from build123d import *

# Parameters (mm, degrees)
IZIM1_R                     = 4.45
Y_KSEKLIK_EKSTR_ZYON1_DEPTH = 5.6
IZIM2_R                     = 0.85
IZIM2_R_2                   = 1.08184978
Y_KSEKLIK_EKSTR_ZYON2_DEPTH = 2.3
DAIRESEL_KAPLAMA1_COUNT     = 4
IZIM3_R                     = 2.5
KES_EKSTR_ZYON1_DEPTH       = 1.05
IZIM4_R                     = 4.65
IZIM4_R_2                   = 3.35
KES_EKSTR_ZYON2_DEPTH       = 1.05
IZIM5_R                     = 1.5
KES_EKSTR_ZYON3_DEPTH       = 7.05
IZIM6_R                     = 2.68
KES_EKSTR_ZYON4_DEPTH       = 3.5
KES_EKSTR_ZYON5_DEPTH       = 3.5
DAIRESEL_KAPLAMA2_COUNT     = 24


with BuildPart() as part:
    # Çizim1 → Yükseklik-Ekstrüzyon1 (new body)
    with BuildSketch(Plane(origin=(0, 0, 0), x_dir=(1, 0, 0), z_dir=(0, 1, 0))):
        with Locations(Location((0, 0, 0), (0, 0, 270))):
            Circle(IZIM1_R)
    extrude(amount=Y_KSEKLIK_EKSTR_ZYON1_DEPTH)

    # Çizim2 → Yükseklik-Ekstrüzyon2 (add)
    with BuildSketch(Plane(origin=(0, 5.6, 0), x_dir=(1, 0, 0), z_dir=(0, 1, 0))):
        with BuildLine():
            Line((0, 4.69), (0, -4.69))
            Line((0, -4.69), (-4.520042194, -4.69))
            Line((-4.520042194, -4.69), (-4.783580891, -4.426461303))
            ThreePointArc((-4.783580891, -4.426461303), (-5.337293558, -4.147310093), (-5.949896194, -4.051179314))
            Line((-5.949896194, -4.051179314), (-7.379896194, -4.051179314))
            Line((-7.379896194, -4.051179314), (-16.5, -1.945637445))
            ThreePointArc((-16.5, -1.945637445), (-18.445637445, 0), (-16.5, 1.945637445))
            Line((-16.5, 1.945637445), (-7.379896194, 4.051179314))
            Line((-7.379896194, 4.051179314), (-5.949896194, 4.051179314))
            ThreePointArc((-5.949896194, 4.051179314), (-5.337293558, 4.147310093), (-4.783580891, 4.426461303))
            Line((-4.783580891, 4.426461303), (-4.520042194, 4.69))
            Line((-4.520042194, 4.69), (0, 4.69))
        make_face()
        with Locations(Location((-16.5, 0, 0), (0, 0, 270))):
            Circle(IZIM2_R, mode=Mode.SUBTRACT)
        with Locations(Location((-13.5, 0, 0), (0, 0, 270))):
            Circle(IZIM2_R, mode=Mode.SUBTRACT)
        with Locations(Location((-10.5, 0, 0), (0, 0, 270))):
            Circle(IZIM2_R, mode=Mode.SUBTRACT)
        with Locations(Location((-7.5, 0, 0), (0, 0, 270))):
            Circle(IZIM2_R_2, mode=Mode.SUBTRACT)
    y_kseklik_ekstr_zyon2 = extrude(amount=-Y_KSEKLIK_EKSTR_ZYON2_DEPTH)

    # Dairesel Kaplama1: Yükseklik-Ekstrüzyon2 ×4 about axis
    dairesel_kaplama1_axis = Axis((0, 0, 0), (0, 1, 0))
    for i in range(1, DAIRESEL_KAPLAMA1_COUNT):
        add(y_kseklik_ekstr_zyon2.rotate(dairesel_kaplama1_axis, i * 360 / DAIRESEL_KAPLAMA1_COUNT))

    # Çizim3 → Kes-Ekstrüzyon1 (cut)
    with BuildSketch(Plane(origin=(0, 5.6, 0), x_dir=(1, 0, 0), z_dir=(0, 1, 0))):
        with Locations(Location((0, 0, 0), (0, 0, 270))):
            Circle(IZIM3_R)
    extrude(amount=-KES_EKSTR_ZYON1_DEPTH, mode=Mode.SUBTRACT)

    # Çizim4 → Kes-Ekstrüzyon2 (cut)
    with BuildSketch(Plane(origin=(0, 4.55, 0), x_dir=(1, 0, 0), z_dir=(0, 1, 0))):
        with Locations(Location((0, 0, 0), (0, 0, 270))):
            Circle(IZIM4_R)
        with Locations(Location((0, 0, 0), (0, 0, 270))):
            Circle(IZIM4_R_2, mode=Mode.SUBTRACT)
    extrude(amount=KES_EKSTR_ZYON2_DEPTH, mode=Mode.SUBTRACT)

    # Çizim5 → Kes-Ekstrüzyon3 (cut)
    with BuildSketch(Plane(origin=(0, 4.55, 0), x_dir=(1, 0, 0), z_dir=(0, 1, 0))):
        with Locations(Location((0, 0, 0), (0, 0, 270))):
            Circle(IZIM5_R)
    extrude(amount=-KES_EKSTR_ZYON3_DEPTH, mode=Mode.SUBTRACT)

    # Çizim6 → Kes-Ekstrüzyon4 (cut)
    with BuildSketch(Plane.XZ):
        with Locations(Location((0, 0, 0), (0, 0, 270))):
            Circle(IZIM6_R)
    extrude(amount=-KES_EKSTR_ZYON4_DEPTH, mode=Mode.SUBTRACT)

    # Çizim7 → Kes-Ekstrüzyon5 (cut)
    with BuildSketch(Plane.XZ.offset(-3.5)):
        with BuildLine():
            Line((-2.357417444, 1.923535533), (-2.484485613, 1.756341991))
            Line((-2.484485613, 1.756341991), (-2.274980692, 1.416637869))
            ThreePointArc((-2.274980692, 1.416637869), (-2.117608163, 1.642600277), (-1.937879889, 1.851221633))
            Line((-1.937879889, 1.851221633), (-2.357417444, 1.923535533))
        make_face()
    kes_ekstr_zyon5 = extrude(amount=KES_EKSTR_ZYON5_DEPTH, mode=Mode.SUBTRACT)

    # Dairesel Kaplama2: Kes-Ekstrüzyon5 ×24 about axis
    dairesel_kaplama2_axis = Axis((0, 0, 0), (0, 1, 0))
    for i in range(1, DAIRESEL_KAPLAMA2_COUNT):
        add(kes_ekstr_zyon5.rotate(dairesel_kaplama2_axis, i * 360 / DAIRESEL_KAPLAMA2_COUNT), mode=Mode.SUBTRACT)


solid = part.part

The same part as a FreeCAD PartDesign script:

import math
import FreeCAD as App
import Part
import Sketcher

V = App.Vector
Q = App.Units.Quantity

doc = App.newDocument("Part")
params = doc.addObject("Spreadsheet::Sheet", "Params")
for row, (alias, value) in enumerate([
    ("sketch1_diameter", "8.9 mm"),
    ("pad1_length", "5.6 mm"),
    ("sketch2_radius", "2 mm"),
    ("sketch2_diameter", "1.7 mm"),
    ("sketch2_width", "1.43 mm"),
    ("sketch2_height", "9.38 mm"),
    ("sketch2_length", "9.36 mm"),
    ("pad2_length", "2.3 mm"),
    ("sketch3_diameter", "5 mm"),
    ("pocket1_length", "1.05 mm"),
    ("sketch4_diameter", "9.3 mm"),
    ("sketch4_diameter2", "6.7 mm"),
    ("pocket2_length", "1.05 mm"),
    ("sketch5_diameter", "3 mm"),
    ("pocket3_length", "7.05 mm"),
    ("sketch6_diameter", "5.36 mm"),
    ("pocket4_length", "3.5 mm"),
    ("sketch7_radius", "2.68 mm"),
    ("sketch7_length", "0.21 mm"),
    ("pocket5_length", "3.5 mm"),
], start=1):
    params.set(f"A{row}", alias)
    params.set(f"B{row}", "=" + value)
    params.setAlias(f"B{row}", alias)

body = doc.addObject("PartDesign::Body", "Body")

sketch1 = body.newObject("Sketcher::SketchObject", "Sketch")
sketch1.AttachmentSupport = (doc.getObject("XZ_Plane"), [""])
sketch1.MapMode = "FlatFace"
sketch1.addGeometry(Part.Circle(V(0, 0, 0), V(0, 0, 1), 4.45), False)
sketch1.addConstraint([
    Sketcher.Constraint("Coincident", 0, 3, -1, 1),
    Sketcher.Constraint("Diameter", 0, Q("8.9 mm")),
])
sketch1.setExpression("Constraints[1]", "Params.sketch1_diameter")
pad1 = body.newObject("PartDesign::Pad", "Pad")
pad1.Profile = sketch1
pad1.setExpression("Length", "Params.pad1_length")
pad1.Reversed = True

sketch2 = body.newObject("Sketcher::SketchObject", "Sketch001")
sketch2.AttachmentSupport = (doc.getObject("XZ_Plane"), [""])
sketch2.MapMode = "FlatFace"
sketch2.AttachmentOffset = App.Placement(V(0, 0, -5.6), App.Rotation())
sketch2.addGeometry([
    Part.LineSegment(V(0, 4.69, 0), V(0, -4.69, 0)),
    Part.LineSegment(V(0, -4.69, 0), V(-4.520042, -4.69, 0)),
    Part.LineSegment(V(-4.520042, -4.69, 0), V(-4.783581, -4.426461, 0)),
    Part.ArcOfCircle(Part.Circle(V(-5.949896, -6.051179, 0), V(0, 0, 1), 2), math.radians(54.327057), math.radians(90)),
    Part.LineSegment(V(-5.949896, -4.051179, 0), V(-7.379896, -4.051179, 0)),
    Part.LineSegment(V(-7.379896, -4.051179, 0), V(-16.5, -1.945637, 0)),
    Part.ArcOfCircle(Part.Circle(V(-16.5, 0, 0), V(0, 0, 1), 1.945637), math.radians(90), math.radians(270)),
    Part.LineSegment(V(-16.5, 1.945637, 0), V(-7.379896, 4.051179, 0)),
    Part.LineSegment(V(-7.379896, 4.051179, 0), V(-5.949896, 4.051179, 0)),
    Part.ArcOfCircle(Part.Circle(V(-5.949896, 6.051179, 0), V(0, 0, 1), 2), math.radians(-90), math.radians(-54.327057)),
    Part.LineSegment(V(-4.783581, 4.426461, 0), V(-4.520042, 4.69, 0)),
    Part.LineSegment(V(-4.520042, 4.69, 0), V(0, 4.69, 0)),
    Part.Circle(V(-7.5, 0, 0), V(0, 0, 1), 1.08185),
    Part.Circle(V(-10.5, 0, 0), V(0, 0, 1), 0.85),
    Part.Circle(V(-13.5, 0, 0), V(0, 0, 1), 0.85),
    Part.Circle(V(-16.5, 0, 0), V(0, 0, 1), 0.85),
], False)
sketch2.addConstraint([
    Sketcher.Constraint("Coincident", 0, 2, 1, 1),
    Sketcher.Constraint("Coincident", 1, 2, 2, 1),
    Sketcher.Constraint("Coincident", 2, 2, 3, 1),
    Sketcher.Constraint("Tangent", 3, 2, 4, 1),
    Sketcher.Constraint("Coincident", 4, 2, 5, 1),
    Sketcher.Constraint("Coincident", 5, 2, 6, 2),
    Sketcher.Constraint("Coincident", 6, 1, 7, 1),
    Sketcher.Constraint("Coincident", 7, 2, 8, 1),
    Sketcher.Constraint("Tangent", 8, 2, 9, 1),
    Sketcher.Constraint("Coincident", 9, 2, 10, 1),
    Sketcher.Constraint("Coincident", 10, 2, 11, 1),
    Sketcher.Constraint("Coincident", 11, 2, 0, 1),
    Sketcher.Constraint("Vertical", 0),
    Sketcher.Constraint("Horizontal", 1),
    Sketcher.Constraint("Horizontal", 4),
    Sketcher.Constraint("Horizontal", 8),
    Sketcher.Constraint("Horizontal", 11),
    Sketcher.Constraint("Coincident", 15, 3, 6, 3),
    Sketcher.Constraint("Equal", 3, 9),
    Sketcher.Constraint("Equal", 13, 14),
    Sketcher.Constraint("Equal", 14, 15),
    Sketcher.Constraint("Symmetric", 0, 2, 11, 2, -1, 1),
    Sketcher.Constraint("Symmetric", 3, 3, 9, 3, -1),
    Sketcher.Constraint("Symmetric", 5, 2, 6, 1, -1),
    Sketcher.Constraint("PointOnObject", 12, 3, -1),
    Sketcher.Constraint("PointOnObject", 13, 3, -1),
    Sketcher.Constraint("PointOnObject", 14, 3, -1),
    Sketcher.Constraint("Perpendicular", 2, 10),
    Sketcher.Constraint("Vertical", 15, 3, 5, 2),
    Sketcher.Constraint("Vertical", 4, 2, 7, 2),
    Sketcher.Constraint("Vertical", 2, 2, 9, 2),
    Sketcher.Constraint("Vertical", 1, 2, 10, 2),
    Sketcher.Constraint("Radius", 3, Q("2 mm")),
    Sketcher.Constraint("Diameter", 13, Q("1.7 mm")),
    Sketcher.Constraint("Angle", 5, Q("167 deg")),
    Sketcher.Constraint("DistanceX", 6, 3, 12, 3, Q("9 mm")),
    Sketcher.Constraint("DistanceX", 13, 3, 12, 3, Q("3 mm")),
    Sketcher.Constraint("DistanceX", 6, 3, 14, 3, Q("3 mm")),
    Sketcher.Constraint("Diameter", 12, Q("2.1637 mm")),
    Sketcher.Constraint("DistanceX", 4, 2, 4, 1, Q("1.43 mm")),
    Sketcher.Constraint("DistanceY", 0, 2, 0, 1, Q("9.38 mm")),
    Sketcher.Constraint("DistanceX", 6, 3, -1, 1, Q("16.5 mm")),
    Sketcher.Constraint("Distance", 5, Q("9.36 mm")),
    Sketcher.Constraint("Radius", 6, Q("1.945637 mm")),
    Sketcher.Constraint("Distance", 2, Q("0.3727 mm")),
])
sketch2.setExpression("Constraints[32]", "Params.sketch2_radius")
sketch2.setExpression("Constraints[33]", "Params.sketch2_diameter")
sketch2.setExpression("Constraints[39]", "Params.sketch2_width")
sketch2.setExpression("Constraints[40]", "Params.sketch2_height")
sketch2.setExpression("Constraints[42]", "Params.sketch2_length")
pad2 = body.newObject("PartDesign::Pad", "Pad001")
pad2.Profile = sketch2
pad2.setExpression("Length", "Params.pad2_length")
doc.recompute()

polarpattern = body.newObject("PartDesign::PolarPattern", "PolarPattern")
polarpattern.Originals = [pad2]
polarpattern.Axis = (doc.getObject("Y_Axis"), [""])
polarpattern.Angle = 360
polarpattern.Occurrences = 4
body.Tip = polarpattern

sketch3 = body.newObject("Sketcher::SketchObject", "Sketch002")
sketch3.AttachmentSupport = (doc.getObject("XZ_Plane"), [""])
sketch3.MapMode = "FlatFace"
sketch3.AttachmentOffset = App.Placement(V(0, 0, -5.6), App.Rotation())
sketch3.addGeometry(Part.Circle(V(0, 0, 0), V(0, 0, 1), 2.5), False)
sketch3.addConstraint([
    Sketcher.Constraint("Coincident", 0, 3, -1, 1),
    Sketcher.Constraint("Diameter", 0, Q("5 mm")),
])
sketch3.setExpression("Constraints[1]", "Params.sketch3_diameter")
pocket1 = body.newObject("PartDesign::Pocket", "Pocket")
pocket1.Profile = sketch3
pocket1.setExpression("Length", "Params.pocket1_length")
pocket1.Reversed = True

sketch4 = body.newObject("Sketcher::SketchObject", "Sketch003")
sketch4.AttachmentSupport = (doc.getObject("XZ_Plane"), [""])
sketch4.MapMode = "FlatFace"
sketch4.AttachmentOffset = App.Placement(V(0, 0, -4.55), App.Rotation())
sketch4.addGeometry([
    Part.Circle(V(0, 0, 0), V(0, 0, 1), 4.65),
    Part.Circle(V(0, 0, 0), V(0, 0, 1), 3.35),
], False)
sketch4.addConstraint([
    Sketcher.Constraint("Coincident", 0, 3, -1, 1),
    Sketcher.Constraint("Coincident", 1, 3, -1, 1),
    Sketcher.Constraint("Diameter", 0, Q("9.3 mm")),
    Sketcher.Constraint("Diameter", 1, Q("6.7 mm")),
])
sketch4.setExpression("Constraints[2]", "Params.sketch4_diameter")
sketch4.setExpression("Constraints[3]", "Params.sketch4_diameter2")
pocket2 = body.newObject("PartDesign::Pocket", "Pocket001")
pocket2.Profile = sketch4
pocket2.setExpression("Length", "Params.pocket2_length")

sketch5 = body.newObject("Sketcher::SketchObject", "Sketch004")
sketch5.AttachmentSupport = (doc.getObject("XZ_Plane"), [""])
sketch5.MapMode = "FlatFace"
sketch5.AttachmentOffset = App.Placement(V(0, 0, -4.55), App.Rotation())
sketch5.addGeometry(Part.Circle(V(0, 0, 0), V(0, 0, 1), 1.5), False)
sketch5.addConstraint([
    Sketcher.Constraint("Coincident", 0, 3, -1, 1),
    Sketcher.Constraint("Diameter", 0, Q("3 mm")),
])
sketch5.setExpression("Constraints[1]", "Params.sketch5_diameter")
pocket3 = body.newObject("PartDesign::Pocket", "Pocket002")
pocket3.Profile = sketch5
pocket3.setExpression("Length", "Params.pocket3_length")
pocket3.Reversed = True

sketch6 = body.newObject("Sketcher::SketchObject", "Sketch005")
sketch6.AttachmentSupport = (doc.getObject("XZ_Plane"), [""])
sketch6.MapMode = "FlatFace"
sketch6.addGeometry(Part.Circle(V(0, 0, 0), V(0, 0, 1), 2.68), False)
sketch6.addConstraint([
    Sketcher.Constraint("Coincident", 0, 3, -1, 1),
    Sketcher.Constraint("Diameter", 0, Q("5.36 mm")),
])
sketch6.setExpression("Constraints[1]", "Params.sketch6_diameter")
pocket4 = body.newObject("PartDesign::Pocket", "Pocket003")
pocket4.Profile = sketch6
pocket4.setExpression("Length", "Params.pocket4_length")

sketch7 = body.newObject("Sketcher::SketchObject", "Sketch006")
sketch7.AttachmentSupport = (doc.getObject("XZ_Plane"), [""])
sketch7.MapMode = "FlatFace"
sketch7.AttachmentOffset = App.Placement(V(0, 0, -3.5), App.Rotation())
sketch7.addGeometry([
    Part.LineSegment(V(-2.357417, 1.923536, 0), V(-2.484486, 1.756342, 0)),
    Part.LineSegment(V(-2.484486, 1.756342, 0), V(-2.274981, 1.416638, 0)),
    Part.ArcOfCircle(Part.Circle(V(0, 0, 0), V(0, 0, 1), 2.68), math.radians(136.310149), math.radians(148.089344)),
    Part.LineSegment(V(-1.93788, 1.851222, 0), V(-2.357417, 1.923536, 0)),
], False)
sketch7.addConstraint([
    Sketcher.Constraint("Coincident", 0, 2, 1, 1),
    Sketcher.Constraint("Coincident", 1, 2, 2, 2),
    Sketcher.Constraint("Coincident", 2, 1, 3, 1),
    Sketcher.Constraint("Coincident", 3, 2, 0, 1),
    Sketcher.Constraint("Coincident", 2, 3, -1, 1),
    Sketcher.Constraint("Radius", 2, Q("2.68 mm")),
    Sketcher.Constraint("Distance", 0, Q("0.21 mm")),
    Sketcher.Constraint("DistanceX", 1, 2, 2, 1, Q("0.337101 mm")),
    Sketcher.Constraint("DistanceY", -1, 1, 0, 2, Q("1.756342 mm")),
    Sketcher.Constraint("DistanceX", 1, 2, -1, 1, Q("2.274981 mm")),
    Sketcher.Constraint("DistanceX", 0, 2, 3, 2, Q("0.127068 mm")),
    Sketcher.Constraint("Distance", 1, Q("0.399113 mm")),
])
sketch7.setExpression("Constraints[5]", "Params.sketch7_radius")
sketch7.setExpression("Constraints[6]", "Params.sketch7_length")
pocket5 = body.newObject("PartDesign::Pocket", "Pocket004")
pocket5.Profile = sketch7
pocket5.setExpression("Length", "Params.pocket5_length")
pocket5.Reversed = True
doc.recompute()

polarpattern2 = body.newObject("PartDesign::PolarPattern", "PolarPattern001")
polarpattern2.Originals = [pocket5]
polarpattern2.Axis = (doc.getObject("Y_Axis"), [""])
polarpattern2.Angle = 360
polarpattern2.Occurrences = 24
body.Tip = polarpattern2

doc.recompute()
